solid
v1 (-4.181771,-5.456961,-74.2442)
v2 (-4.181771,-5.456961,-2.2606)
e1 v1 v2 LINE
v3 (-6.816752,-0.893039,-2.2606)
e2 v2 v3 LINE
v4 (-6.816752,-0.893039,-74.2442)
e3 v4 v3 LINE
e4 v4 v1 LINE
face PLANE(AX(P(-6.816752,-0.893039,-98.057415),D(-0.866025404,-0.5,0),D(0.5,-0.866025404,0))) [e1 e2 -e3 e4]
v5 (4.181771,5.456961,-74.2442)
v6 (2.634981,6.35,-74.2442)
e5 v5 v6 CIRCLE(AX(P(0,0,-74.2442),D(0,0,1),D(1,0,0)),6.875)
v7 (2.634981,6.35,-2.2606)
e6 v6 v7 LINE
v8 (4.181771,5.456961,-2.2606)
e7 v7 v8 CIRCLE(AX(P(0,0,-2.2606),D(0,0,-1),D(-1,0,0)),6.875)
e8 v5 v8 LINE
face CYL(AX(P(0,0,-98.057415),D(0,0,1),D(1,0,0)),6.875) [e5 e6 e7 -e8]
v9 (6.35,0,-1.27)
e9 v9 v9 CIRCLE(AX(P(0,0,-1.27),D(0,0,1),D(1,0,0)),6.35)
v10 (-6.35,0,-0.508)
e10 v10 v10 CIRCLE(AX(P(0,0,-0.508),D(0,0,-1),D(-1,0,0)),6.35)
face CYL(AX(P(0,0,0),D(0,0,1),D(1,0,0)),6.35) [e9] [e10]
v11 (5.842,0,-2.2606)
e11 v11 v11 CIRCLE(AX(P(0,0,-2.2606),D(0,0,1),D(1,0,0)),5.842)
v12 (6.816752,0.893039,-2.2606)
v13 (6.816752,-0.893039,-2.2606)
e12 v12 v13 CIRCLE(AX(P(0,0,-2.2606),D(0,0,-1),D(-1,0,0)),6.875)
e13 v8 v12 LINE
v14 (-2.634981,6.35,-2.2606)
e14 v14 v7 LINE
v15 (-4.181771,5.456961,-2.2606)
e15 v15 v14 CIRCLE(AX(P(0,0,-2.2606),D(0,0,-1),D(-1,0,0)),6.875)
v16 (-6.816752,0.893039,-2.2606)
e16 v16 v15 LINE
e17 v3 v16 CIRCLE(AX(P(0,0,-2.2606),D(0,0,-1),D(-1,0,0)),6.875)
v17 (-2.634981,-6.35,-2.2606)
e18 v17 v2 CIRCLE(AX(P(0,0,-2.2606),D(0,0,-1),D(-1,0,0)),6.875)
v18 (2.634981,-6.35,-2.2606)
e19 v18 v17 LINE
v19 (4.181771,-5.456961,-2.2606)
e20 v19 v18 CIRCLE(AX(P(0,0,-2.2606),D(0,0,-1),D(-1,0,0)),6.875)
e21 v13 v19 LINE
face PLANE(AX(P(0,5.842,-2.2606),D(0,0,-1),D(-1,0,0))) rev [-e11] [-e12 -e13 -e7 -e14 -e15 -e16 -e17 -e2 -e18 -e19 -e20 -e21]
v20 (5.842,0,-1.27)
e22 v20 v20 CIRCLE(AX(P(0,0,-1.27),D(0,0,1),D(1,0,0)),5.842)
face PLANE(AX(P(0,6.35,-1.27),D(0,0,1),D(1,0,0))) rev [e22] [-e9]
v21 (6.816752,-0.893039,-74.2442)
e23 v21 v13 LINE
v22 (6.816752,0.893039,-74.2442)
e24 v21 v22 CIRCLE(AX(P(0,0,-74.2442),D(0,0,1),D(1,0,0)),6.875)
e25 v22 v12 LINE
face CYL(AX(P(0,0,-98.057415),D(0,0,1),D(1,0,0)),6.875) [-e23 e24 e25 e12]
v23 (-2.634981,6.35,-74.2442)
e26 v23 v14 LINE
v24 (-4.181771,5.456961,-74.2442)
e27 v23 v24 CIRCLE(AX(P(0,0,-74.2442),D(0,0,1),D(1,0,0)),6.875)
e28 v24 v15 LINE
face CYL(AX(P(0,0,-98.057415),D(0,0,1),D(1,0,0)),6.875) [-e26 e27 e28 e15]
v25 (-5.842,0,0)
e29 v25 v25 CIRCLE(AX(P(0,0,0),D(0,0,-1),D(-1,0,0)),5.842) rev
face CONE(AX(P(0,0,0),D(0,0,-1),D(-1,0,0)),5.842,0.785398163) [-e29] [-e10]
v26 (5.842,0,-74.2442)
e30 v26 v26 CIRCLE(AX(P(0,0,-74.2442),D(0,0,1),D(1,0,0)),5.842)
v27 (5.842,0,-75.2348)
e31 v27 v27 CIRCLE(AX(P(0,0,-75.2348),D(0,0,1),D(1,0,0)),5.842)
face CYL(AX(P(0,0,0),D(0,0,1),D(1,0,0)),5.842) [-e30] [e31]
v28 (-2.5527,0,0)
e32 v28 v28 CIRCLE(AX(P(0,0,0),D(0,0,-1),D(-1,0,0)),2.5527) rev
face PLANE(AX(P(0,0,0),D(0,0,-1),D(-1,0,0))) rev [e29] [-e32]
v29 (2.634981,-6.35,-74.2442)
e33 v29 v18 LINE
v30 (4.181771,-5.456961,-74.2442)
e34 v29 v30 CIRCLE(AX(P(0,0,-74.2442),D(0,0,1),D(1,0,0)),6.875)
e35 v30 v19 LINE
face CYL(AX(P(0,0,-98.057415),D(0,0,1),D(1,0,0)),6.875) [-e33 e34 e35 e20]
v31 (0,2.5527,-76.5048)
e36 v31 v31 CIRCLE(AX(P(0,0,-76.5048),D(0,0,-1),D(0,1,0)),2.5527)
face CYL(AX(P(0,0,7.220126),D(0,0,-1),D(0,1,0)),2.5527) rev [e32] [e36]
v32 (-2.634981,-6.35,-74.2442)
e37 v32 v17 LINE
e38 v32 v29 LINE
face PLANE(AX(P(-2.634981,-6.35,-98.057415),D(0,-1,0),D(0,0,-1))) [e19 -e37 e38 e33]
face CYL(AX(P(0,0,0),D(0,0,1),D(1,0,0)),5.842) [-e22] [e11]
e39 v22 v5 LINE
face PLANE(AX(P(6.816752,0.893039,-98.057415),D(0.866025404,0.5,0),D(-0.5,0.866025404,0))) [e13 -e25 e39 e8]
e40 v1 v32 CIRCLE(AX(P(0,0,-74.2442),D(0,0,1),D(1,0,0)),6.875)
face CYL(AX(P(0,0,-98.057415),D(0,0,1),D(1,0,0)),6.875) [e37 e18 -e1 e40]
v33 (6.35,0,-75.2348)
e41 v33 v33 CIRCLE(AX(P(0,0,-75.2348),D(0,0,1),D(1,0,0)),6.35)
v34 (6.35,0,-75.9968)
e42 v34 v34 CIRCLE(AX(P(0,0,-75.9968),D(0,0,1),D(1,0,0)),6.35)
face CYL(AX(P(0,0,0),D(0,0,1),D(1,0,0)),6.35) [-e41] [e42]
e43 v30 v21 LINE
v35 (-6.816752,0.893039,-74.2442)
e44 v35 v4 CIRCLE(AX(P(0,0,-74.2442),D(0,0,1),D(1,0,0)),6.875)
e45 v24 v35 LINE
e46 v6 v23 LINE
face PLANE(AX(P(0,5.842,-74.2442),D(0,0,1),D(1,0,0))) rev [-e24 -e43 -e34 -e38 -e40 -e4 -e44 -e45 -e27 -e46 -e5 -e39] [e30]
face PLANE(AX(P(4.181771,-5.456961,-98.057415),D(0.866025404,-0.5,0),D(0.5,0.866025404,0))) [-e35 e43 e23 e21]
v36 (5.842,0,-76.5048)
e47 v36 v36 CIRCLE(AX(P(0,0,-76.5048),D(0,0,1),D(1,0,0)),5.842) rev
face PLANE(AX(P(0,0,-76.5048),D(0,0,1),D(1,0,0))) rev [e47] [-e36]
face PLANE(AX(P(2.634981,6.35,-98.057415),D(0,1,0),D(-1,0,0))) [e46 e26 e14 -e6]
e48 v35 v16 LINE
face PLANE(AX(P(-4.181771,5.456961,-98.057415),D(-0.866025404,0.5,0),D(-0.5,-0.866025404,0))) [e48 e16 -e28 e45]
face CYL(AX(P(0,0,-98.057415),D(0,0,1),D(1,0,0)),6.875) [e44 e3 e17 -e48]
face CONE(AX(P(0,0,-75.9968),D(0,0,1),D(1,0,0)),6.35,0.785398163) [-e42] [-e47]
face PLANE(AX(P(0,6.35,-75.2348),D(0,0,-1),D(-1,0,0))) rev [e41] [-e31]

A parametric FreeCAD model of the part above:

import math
import FreeCAD as App
import Part
import Sketcher
Q = App.Units.Quantity


def edges_at(feature, points):
    """Names of the edges that pass closest to the given points."""
    edges = feature.Shape.Edges
    near = lambda p: min(range(len(edges)), key=lambda i: edges[i].distToShape(Part.Vertex(*p))[0])
    return sorted({f"Edge{near(p) + 1}" for p in points})

doc = App.newDocument("Part")
body = doc.addObject("PartDesign::Body", "Body")

sketch1 = body.newObject("Sketcher::SketchObject", "Sketch")
sketch1.AttachmentSupport = (doc.getObject("YZ_Plane"), [""])
sketch1.MapMode = "FlatFace"
sketch1.addGeometry([
    Part.LineSegment(App.Vector(5.8, -1.3, 0), App.Vector(6.3, -1.3, 0)),
    Part.LineSegment(App.Vector(6.3, -1.3, 0), App.Vector(6.3, 0, 0)),
    Part.LineSegment(App.Vector(6.3, 0, 0), App.Vector(0, 0, 0)),
    Part.LineSegment(App.Vector(0, 0, 0), App.Vector(0, -76.5, 0)),
    Part.LineSegment(App.Vector(0, -76.5, 0), App.Vector(6.3, -76.5, 0)),
    Part.LineSegment(App.Vector(6.3, -76.5, 0), App.Vector(6.3, -75.2, 0)),
    Part.LineSegment(App.Vector(6.3, -75.2, 0), App.Vector(5.8, -75.2, 0)),
    Part.LineSegment(App.Vector(5.8, -75.2, 0), App.Vector(5.8, -74.2, 0)),
    Part.LineSegment(App.Vector(5.8, -74.2, 0), App.Vector(7.6, -74.2, 0)),
    Part.LineSegment(App.Vector(7.6, -74.2, 0), App.Vector(7.6, -2.3, 0)),
    Part.LineSegment(App.Vector(7.6, -2.3, 0), App.Vector(5.8, -2.3, 0)),
    Part.LineSegment(App.Vector(5.8, -2.3, 0), App.Vector(5.8, -1.3, 0)),
], False)
sketch1.addConstraint([
    Sketcher.Constraint("Coincident", 0, 2, 1, 1),
    Sketcher.Constraint("Coincident", 1, 2, 2, 1),
    Sketcher.Constraint("Coincident", 2, 2, 3, 1),
    Sketcher.Constraint("Coincident", 3, 2, 4, 1),
    Sketcher.Constraint("Coincident", 4, 2, 5, 1),
    Sketcher.Constraint("Coincident", 5, 2, 6, 1),
    Sketcher.Constraint("Coincident", 6, 2, 7, 1),
    Sketcher.Constraint("Coincident", 7, 2, 8, 1),
    Sketcher.Constraint("Coincident", 8, 2, 9, 1),
    Sketcher.Constraint("Coincident", 9, 2, 10, 1),
    Sketcher.Constraint("Coincident", 10, 2, 11, 1),
    Sketcher.Constraint("Coincident", 11, 2, 0, 1),
    Sketcher.Constraint("Horizontal", 0),
    Sketcher.Constraint("Vertical", 1),
    Sketcher.Constraint("Horizontal", 2),
    Sketcher.Constraint("Vertical", 3),
    Sketcher.Constraint("Horizontal", 4),
    Sketcher.Constraint("Vertical", 5),
    Sketcher.Constraint("Horizontal", 6),
    Sketcher.Constraint("Vertical", 7),
    Sketcher.Constraint("Horizontal", 8),
    Sketcher.Constraint("Vertical", 9),
    Sketcher.Constraint("Horizontal", 10),
    Sketcher.Constraint("Vertical", 11),
    Sketcher.Constraint("Coincident", 2, 2, -1, 1),
    Sketcher.Constraint("Vertical", 1, 2, 4, 2),
    Sketcher.Constraint("Vertical", 7, 2, 10, 2),
    Sketcher.Constraint("Equal", 1, 5),
    Sketcher.Constraint("Equal", 7, 11),
    Sketcher.Constraint("DistanceX", 0, 1, 0, 2, Q("0.02 in")),
    Sketcher.Constraint("DistanceX", 2, 2, 2, 1, Q("0.25 in")),
    Sketcher.Constraint("DistanceX", 8, 1, 8, 2, Q("0.07 in")),
    Sketcher.Constraint("DistanceY", 1, 1, 1, 2, Q("0.05 in")),
    Sketcher.Constraint("DistanceY", 3, 2, 3, 1, Q("3.012 in")),
    Sketcher.Constraint("DistanceY", 7, 1, 7, 2, Q("0.039 in")),
])
revolution = body.newObject("PartDesign::Revolution", "Revolution")
revolution.Profile = sketch1
revolution.ReferenceAxis = (sketch1, ["V_Axis"])
revolution.Angle = 360

sketch2 = body.newObject("Sketcher::SketchObject", "Sketch001")
sketch2.AttachmentSupport = (doc.getObject("XY_Plane"), [""])
sketch2.MapMode = "FlatFace"
sketch2.AttachmentOffset = App.Placement(App.Vector(0, 0, -3.012 * 25.4), App.Rotation())
sketch2.addGeometry([
    Part.Circle(App.Vector(0, 0, 0), App.Vector(0, 0, 1), 7.6),
    Part.LineSegment(App.Vector(4.2, 5.5, 0), App.Vector(6.8, 0.9, 0)),
    Part.ArcOfCircle(Part.Circle(App.Vector(0, 0, 0), App.Vector(0, 0, 1), 6.9), math.radians(-7.46), math.radians(7.46)),
    Part.LineSegment(App.Vector(6.8, -0.9, 0), App.Vector(4.2, -5.5, 0)),
    Part.ArcOfCircle(Part.Circle(App.Vector(0, 0, 0), App.Vector(0, 0, 1), 6.9), math.radians(-67.46), math.radians(-52.54)),
    Part.LineSegment(App.Vector(2.6, -6.3, 0), App.Vector(-2.6, -6.3, 0)),
    Part.ArcOfCircle(Part.Circle(App.Vector(0, 0, 0), App.Vector(0, 0, 1), 6.9), math.radians(-127.46), math.radians(-112.54)),
    Part.LineSegment(App.Vector(-4.2, -5.5, 0), App.Vector(-6.8, -0.9, 0)),
    Part.ArcOfCircle(Part.Circle(App.Vector(0, 0, 0), App.Vector(0, 0, 1), 6.9), math.radians(172.54), math.radians(187.46)),
    Part.LineSegment(App.Vector(-6.8, 0.9, 0), App.Vector(-4.2, 5.5, 0)),
    Part.ArcOfCircle(Part.Circle(App.Vector(0, 0, 0), App.Vector(0, 0, 1), 6.9), math.radians(112.54), math.radians(127.46)),
    Part.LineSegment(App.Vector(-2.6, 6.3, 0), App.Vector(2.6, 6.3, 0)),
    Part.ArcOfCircle(Part.Circle(App.Vector(0, 0, 0), App.Vector(0, 0, 1), 6.9), math.radians(52.54), math.radians(67.46)),
], False)
sketch2.addConstraint([
    Sketcher.Constraint("Coincident", 1, 2, 2, 2),
    Sketcher.Constraint("Coincident", 2, 1, 3, 1),
    Sketcher.Constraint("Coincident", 3, 2, 4, 2),
    Sketcher.Constraint("Coincident", 4, 1, 5, 1),
    Sketcher.Constraint("Coincident", 5, 2, 6, 2),
    Sketcher.Constraint("Coincident", 6, 1, 7, 1),
    Sketcher.Constraint("Coincident", 7, 2, 8, 2),
    Sketcher.Constraint("Coincident", 8, 1, 9, 1),
    Sketcher.Constraint("Coincident", 9, 2, 10, 2),
    Sketcher.Constraint("Coincident", 10, 1, 11, 1),
    Sketcher.Constraint("Coincident", 11, 2, 12, 2),
    Sketcher.Constraint("Coincident", 12, 1, 1, 1),
    Sketcher.Constraint("Horizontal", 5),
    Sketcher.Constraint("Horizontal", 11),
    Sketcher.Constraint("Coincident", 0, 3, -1, 1),
    Sketcher.Constraint("Coincident", 2, 3, -1, 1),
    Sketcher.Constraint("Coincident", 4, 3, -1, 1),
    Sketcher.Constraint("Coincident", 6, 3, -1, 1),
    Sketcher.Constraint("Coincident", 8, 3, -1, 1),
    Sketcher.Constraint("Coincident", 10, 3, -1, 1),
    Sketcher.Constraint("Coincident", 12, 3, -1, 1),
    Sketcher.Constraint("Equal", 2, 4),
    Sketcher.Constraint("Equal", 4, 6),
    Sketcher.Constraint("Equal", 6, 8),
    Sketcher.Constraint("Equal", 8, 10),
    Sketcher.Constraint("Equal", 10, 12),
    Sketcher.Constraint("Parallel", 1, 7),
    Sketcher.Constraint("Parallel", 3, 9),
    Sketcher.Constraint("Horizontal", 3, 2, 6, 1),
    Sketcher.Constraint("Horizontal", 2, 1, 7, 2),
    Sketcher.Constraint("Horizontal", 1, 2, 8, 1),
    Sketcher.Constraint("Vertical", 1, 2, 2, 1),
    Sketcher.Constraint("Vertical", 5, 2, 10, 1),
    Sketcher.Constraint("Diameter", 0, Q("0.6 in")),
    Sketcher.Constraint("Angle", 1, Q("-60 deg")),
    Sketcher.Constraint("DistanceY", 4, 1, -1, 1, Q("0.25 in")),
    Sketcher.Constraint("Radius", 2, Q("6.875 mm")),
    Sketcher.Constraint("DistanceY", 3, 2, 1, 2, Q("0.25 in")),
])
pocket1 = body.newObject("PartDesign::Pocket", "Pocket")
pocket1.Profile = sketch2
pocket1.Length = Q("3.012 in")
pocket1.Reversed = True

sketch3 = body.newObject("Sketcher::SketchObject", "Sketch002")
sketch3.AttachmentSupport = (doc.getObject("XY_Plane"), [""])
sketch3.MapMode = "FlatFace"
sketch3.AttachmentOffset = App.Placement(App.Vector(0, 0, -3.012 * 25.4), App.Rotation())
sketch3.addGeometry(Part.Circle(App.Vector(0, 0, 0), App.Vector(0, 0, 1), 2.6), False)
sketch3.addConstraint([
    Sketcher.Constraint("Coincident", 0, 3, -1, 1),
    Sketcher.Constraint("Diameter", 0, Q("0.201 in")),
])
pocket2 = body.newObject("PartDesign::Pocket", "Pocket001")
pocket2.Profile = sketch3
pocket2.Length = Q("3.012 in")
pocket2.Reversed = True
doc.recompute()

chamfer = body.newObject("PartDesign::Chamfer", "Chamfer")
chamfer.Base = (pocket2, edges_at(pocket2, [(-6.35, 0, 0), (-6.35, 0, -76.505)]))
chamfer.Size = Q("0.02 in")

doc.recompute()
